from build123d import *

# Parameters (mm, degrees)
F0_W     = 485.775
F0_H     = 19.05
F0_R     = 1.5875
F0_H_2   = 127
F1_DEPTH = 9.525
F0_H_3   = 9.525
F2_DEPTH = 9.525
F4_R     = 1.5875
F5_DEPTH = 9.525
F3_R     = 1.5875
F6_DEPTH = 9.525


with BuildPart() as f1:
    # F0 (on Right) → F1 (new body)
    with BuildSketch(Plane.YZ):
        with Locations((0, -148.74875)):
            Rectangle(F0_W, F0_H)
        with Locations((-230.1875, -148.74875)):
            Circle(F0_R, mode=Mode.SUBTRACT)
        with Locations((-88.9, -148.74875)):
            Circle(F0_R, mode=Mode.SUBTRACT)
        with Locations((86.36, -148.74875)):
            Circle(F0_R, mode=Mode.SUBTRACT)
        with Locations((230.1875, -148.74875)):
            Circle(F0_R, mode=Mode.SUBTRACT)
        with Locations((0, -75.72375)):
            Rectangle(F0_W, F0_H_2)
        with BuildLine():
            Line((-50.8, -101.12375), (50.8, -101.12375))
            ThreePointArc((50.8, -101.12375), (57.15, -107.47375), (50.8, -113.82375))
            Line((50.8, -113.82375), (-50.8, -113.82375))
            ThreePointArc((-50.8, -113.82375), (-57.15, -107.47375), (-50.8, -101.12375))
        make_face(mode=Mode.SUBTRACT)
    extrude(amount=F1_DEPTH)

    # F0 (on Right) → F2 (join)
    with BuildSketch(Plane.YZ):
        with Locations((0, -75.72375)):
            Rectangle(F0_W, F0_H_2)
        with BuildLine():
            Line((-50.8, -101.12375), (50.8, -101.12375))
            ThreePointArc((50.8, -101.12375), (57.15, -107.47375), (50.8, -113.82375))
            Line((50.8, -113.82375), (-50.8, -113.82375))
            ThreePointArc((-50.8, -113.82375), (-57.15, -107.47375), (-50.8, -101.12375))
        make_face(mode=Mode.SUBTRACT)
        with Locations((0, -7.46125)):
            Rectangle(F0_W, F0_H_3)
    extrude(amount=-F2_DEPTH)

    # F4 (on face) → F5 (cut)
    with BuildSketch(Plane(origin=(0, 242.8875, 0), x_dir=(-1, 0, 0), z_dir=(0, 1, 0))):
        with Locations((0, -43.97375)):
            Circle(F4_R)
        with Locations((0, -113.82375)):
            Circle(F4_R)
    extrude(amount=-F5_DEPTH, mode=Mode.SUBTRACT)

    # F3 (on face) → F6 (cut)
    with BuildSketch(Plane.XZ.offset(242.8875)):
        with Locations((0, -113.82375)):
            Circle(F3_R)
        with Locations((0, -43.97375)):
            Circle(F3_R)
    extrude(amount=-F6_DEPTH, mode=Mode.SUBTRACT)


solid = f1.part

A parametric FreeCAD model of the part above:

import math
import FreeCAD as App
import Part
import Sketcher
from FreeCAD import Vector
Q = App.Units.Quantity

doc = App.newDocument("Part")
body = doc.addObject("PartDesign::Body", "Body")

# Sketch on YZ plane
sketch1 = body.newObject("Sketcher::SketchObject", "Sketch")
sketch1.AttachmentSupport = (doc.getObject("YZ_Plane"), [""])
sketch1.MapMode = "FlatFace"
sketch1.addGeometry(Part.LineSegment(Vector(-242.9, -158.3, 0), Vector(242.9, -158.3, 0)), False)
sketch1.addGeometry(Part.LineSegment(Vector(242.9, -158.3, 0), Vector(242.9, -12.2, 0)), False)
sketch1.addGeometry(Part.LineSegment(Vector(242.9, -12.2, 0), Vector(-242.9, -12.2, 0)), False)
sketch1.addGeometry(Part.LineSegment(Vector(-242.9, -12.2, 0), Vector(-242.9, -158.3, 0)), False)
sketch1.addGeometry(Part.Circle(Vector(-230.2, -148.7, 0), Vector(0, 0, 1), 1.6), False)
sketch1.addGeometry(Part.Circle(Vector(-88.9, -148.7, 0), Vector(0, 0, 1), 1.6), False)
sketch1.addGeometry(Part.Circle(Vector(86.4, -148.7, 0), Vector(0, 0, 1), 1.6), False)
sketch1.addGeometry(Part.Circle(Vector(230.2, -148.7, 0), Vector(0, 0, 1), 1.6), False)
sketch1.addGeometry(Part.ArcOfCircle(Part.Circle(Vector(-50.8, -107.5, 0), Vector(0, 0, 1), 6.3), math.radians(90), math.radians(270)), False)
sketch1.addGeometry(Part.LineSegment(Vector(-50.8, -101.1, 0), Vector(50.8, -101.1, 0)), False)
sketch1.addGeometry(Part.ArcOfCircle(Part.Circle(Vector(50.8, -107.5, 0), Vector(0, 0, 1), 6.3), math.radians(-90), math.radians(90)), False)
sketch1.addGeometry(Part.LineSegment(Vector(50.8, -113.8, 0), Vector(-50.8, -113.8, 0)), False)
sketch1.addConstraint(Sketcher.Constraint("Coincident", 0, 2, 1, 1))
sketch1.addConstraint(Sketcher.Constraint("Coincident", 1, 2, 2, 1))
sketch1.addConstraint(Sketcher.Constraint("Coincident", 2, 2, 3, 1))
sketch1.addConstraint(Sketcher.Constraint("Coincident", 3, 2, 0, 1))
sketch1.addConstraint(Sketcher.Constraint("Tangent", 8, 1, 9, 1))
sketch1.addConstraint(Sketcher.Constraint("Tangent", 9, 2, 10, 2))
sketch1.addConstraint(Sketcher.Constraint("Tangent", 10, 1, 11, 1))
sketch1.addConstraint(Sketcher.Constraint("Tangent", 11, 2, 8, 2))
sketch1.addConstraint(Sketcher.Constraint("Horizontal", 0))
sketch1.addConstraint(Sketcher.Constraint("Vertical", 1))
sketch1.addConstraint(Sketcher.Constraint("Horizontal", 2))
sketch1.addConstraint(Sketcher.Constraint("Vertical", 3))
sketch1.addConstraint(Sketcher.Constraint("Horizontal", 9))
sketch1.addConstraint(Sketcher.Constraint("Horizontal", 11))
sketch1.addConstraint(Sketcher.Constraint("Equal", 4, 5))
sketch1.addConstraint(Sketcher.Constraint("Equal", 5, 6))
sketch1.addConstraint(Sketcher.Constraint("Equal", 6, 7))
sketch1.addConstraint(Sketcher.Constraint("Symmetric", 4, 3, 7, 3, -2))
sketch1.addConstraint(Sketcher.Constraint("Horizontal", 4, 3, 5, 3))
sketch1.addConstraint(Sketcher.Constraint("Horizontal", 5, 3, 6, 3))
sketch1.addConstraint(Sketcher.Constraint("DistanceX", 9, 1, 9, 2, Q("4 in")))
sketch1.addConstraint(Sketcher.Constraint("Radius", 8, Q("0.25 in")))
sketch1.addConstraint(Sketcher.Constraint("Diameter", 4, Q("0.125 in")))
sketch1.addConstraint(Sketcher.Constraint("DistanceX", 8, 3, -1, 1, Q("2 in")))
sketch1.addConstraint(Sketcher.Constraint("DistanceY", 0, 2, 10, 3, Q("2 in")))
sketch1.addConstraint(Sketcher.Constraint("DistanceY", 1, 1, 1, 2, Q("5.75 in")))
sketch1.addConstraint(Sketcher.Constraint("DistanceX", 5, 3, -1, 1, Q("3.5 in")))
sketch1.addConstraint(Sketcher.Constraint("DistanceX", -1, 1, 6, 3, Q("3.4 in")))
sketch1.addConstraint(Sketcher.Constraint("DistanceX", 7, 3, 0, 2, Q("0.5 in")))
sketch1.addConstraint(Sketcher.Constraint("DistanceX", 2, 2, 4, 3, Q("0.5 in")))
sketch1.addConstraint(Sketcher.Constraint("DistanceX", 0, 1, 0, 2, Q("19.125 in")))
sketch1.addConstraint(Sketcher.Constraint("DistanceY", 5, 3, 8, 3, Q("1.625 in")))
sketch1.addConstraint(Sketcher.Constraint("DistanceY", 4, 3, -1, 1, 148.74875))
pad1 = body.newObject("PartDesign::Pad", "Pad")
pad1.Profile = sketch1
pad1.Length = Q("0.375 in")

# Sketch on YZ plane
sketch2 = body.newObject("Sketcher::SketchObject", "Sketch001")
sketch2.AttachmentSupport = (doc.getObject("YZ_Plane"), [""])
sketch2.MapMode = "FlatFace"
sketch2.addGeometry(Part.LineSegment(Vector(-243, -139, 0), Vector(243, -139, 0)), False)
sketch2.addGeometry(Part.LineSegment(Vector(243, -139, 0), Vector(243, -3, 0)), False)
sketch2.addGeometry(Part.LineSegment(Vector(243, -3, 0), Vector(-243, -3, 0)), False)
sketch2.addGeometry(Part.LineSegment(Vector(-243, -3, 0), Vector(-243, -139, 0)), False)
sketch2.addGeometry(Part.ArcOfCircle(Part.Circle(Vector(-51, -107, 0), Vector(0, 0, 1), 6), math.radians(90), math.radians(270)), False)
sketch2.addGeometry(Part.LineSegment(Vector(-51, -101, 0), Vector(51, -101, 0)), False)
sketch2.addGeometry(Part.ArcOfCircle(Part.Circle(Vector(51, -107, 0), Vector(0, 0, 1), 6), math.radians(-90), math.radians(90)), False)
sketch2.addGeometry(Part.LineSegment(Vector(51, -114, 0), Vector(-51, -114, 0)), False)
sketch2.addConstraint(Sketcher.Constraint("Coincident", 0, 2, 1, 1))
sketch2.addConstraint(Sketcher.Constraint("Coincident", 1, 2, 2, 1))
sketch2.addConstraint(Sketcher.Constraint("Coincident", 2, 2, 3, 1))
sketch2.addConstraint(Sketcher.Constraint("Coincident", 3, 2, 0, 1))
sketch2.addConstraint(Sketcher.Constraint("Tangent", 4, 1, 5, 1))
sketch2.addConstraint(Sketcher.Constraint("Tangent", 5, 2, 6, 2))
sketch2.addConstraint(Sketcher.Constraint("Tangent", 6, 1, 7, 1))
sketch2.addConstraint(Sketcher.Constraint("Tangent", 7, 2, 4, 2))
sketch2.addConstraint(Sketcher.Constraint("Horizontal", 0))
sketch2.addConstraint(Sketcher.Constraint("Vertical", 1))
sketch2.addConstraint(Sketcher.Constraint("Horizontal", 2))
sketch2.addConstraint(Sketcher.Constraint("Vertical", 3))
sketch2.addConstraint(Sketcher.Constraint("Horizontal", 5))
sketch2.addConstraint(Sketcher.Constraint("Horizontal", 7))
sketch2.addConstraint(Sketcher.Constraint("DistanceX", 5, 1, 5, 2, Q("4 in")))
sketch2.addConstraint(Sketcher.Constraint("Radius", 4, Q("0.25 in")))
sketch2.addConstraint(Sketcher.Constraint("DistanceX", 4, 3, -1, 1, Q("2 in")))
sketch2.addConstraint(Sketcher.Constraint("DistanceY", 0, 2, 6, 1, Q("1 in")))
sketch2.addConstraint(Sketcher.Constraint("DistanceX", 0, 1, 0, 2, Q("19.125 in")))
sketch2.addConstraint(Sketcher.Constraint("DistanceY", 1, 1, 1, 2, Q("5.375 in")))
sketch2.addConstraint(Sketcher.Constraint("DistanceX", -1, 1, 0, 2, Q("9.5625 in")))
sketch2.addConstraint(Sketcher.Constraint("DistanceY", 4, 3, -1, 1, 107.47375))
pad2 = body.newObject("PartDesign::Pad", "Pad001")
pad2.Profile = sketch2
pad2.Length = Q("0.375 in")
pad2.Reversed = True

# Sketch on XZ plane
sketch3 = body.newObject("Sketcher::SketchObject", "Sketch002")
sketch3.AttachmentSupport = (doc.getObject("XZ_Plane"), [""])
sketch3.MapMode = "FlatFace"
sketch3.AttachmentOffset = App.Placement(Vector(0, 0, -9.5625 * 25.4), App.Rotation())
sketch3.addGeometry(Part.Circle(Vector(0, -44, 0), Vector(0, 0, 1), 1.6), False)
sketch3.addGeometry(Part.Circle(Vector(0, -113.8, 0), Vector(0, 0, 1), 1.6), False)
sketch3.addConstraint(Sketcher.Constraint("Equal", 0, 1))
sketch3.addConstraint(Sketcher.Constraint("PointOnObject", 0, 3, -2))
sketch3.addConstraint(Sketcher.Constraint("PointOnObject", 1, 3, -2))
sketch3.addConstraint(Sketcher.Constraint("Diameter", 0, Q("0.125 in")))
sketch3.addConstraint(Sketcher.Constraint("DistanceY", 1, 3, 0, 3, Q("2.75 in")))
sketch3.addConstraint(Sketcher.Constraint("DistanceY", 0, 3, -1, 1, 43.97375))
pocket1 = body.newObject("PartDesign::Pocket", "Pocket")
pocket1.Profile = sketch3
pocket1.Length = Q("0.375 in")
pocket1.Reversed = True

# Sketch on XZ plane
sketch4 = body.newObject("Sketcher::SketchObject", "Sketch003")
sketch4.AttachmentSupport = (doc.getObject("XZ_Plane"), [""])
sketch4.MapMode = "FlatFace"
sketch4.AttachmentOffset = App.Placement(Vector(0, 0, 9.5625 * 25.4), App.Rotation())
sketch4.addGeometry(Part.Circle(Vector(0, -113.8, 0), Vector(0, 0, 1), 1.6), False)
sketch4.addGeometry(Part.Circle(Vector(0, -44, 0), Vector(0, 0, 1), 1.6), False)
sketch4.addConstraint(Sketcher.Constraint("Equal", 0, 1))
sketch4.addConstraint(Sketcher.Constraint("PointOnObject", 0, 3, -2))
sketch4.addConstraint(Sketcher.Constraint("PointOnObject", 1, 3, -2))
sketch4.addConstraint(Sketcher.Constraint("Diameter", 0, Q("0.125 in")))
sketch4.addConstraint(Sketcher.Constraint("DistanceY", 0, 3, 1, 3, Q("2.75 in")))
sketch4.addConstraint(Sketcher.Constraint("DistanceY", 0, 3, -1, 1, 113.82375))
pocket2 = body.newObject("PartDesign::Pocket", "Pocket001")
pocket2.Profile = sketch4
pocket2.Length = Q("0.375 in")

doc.recompute()
